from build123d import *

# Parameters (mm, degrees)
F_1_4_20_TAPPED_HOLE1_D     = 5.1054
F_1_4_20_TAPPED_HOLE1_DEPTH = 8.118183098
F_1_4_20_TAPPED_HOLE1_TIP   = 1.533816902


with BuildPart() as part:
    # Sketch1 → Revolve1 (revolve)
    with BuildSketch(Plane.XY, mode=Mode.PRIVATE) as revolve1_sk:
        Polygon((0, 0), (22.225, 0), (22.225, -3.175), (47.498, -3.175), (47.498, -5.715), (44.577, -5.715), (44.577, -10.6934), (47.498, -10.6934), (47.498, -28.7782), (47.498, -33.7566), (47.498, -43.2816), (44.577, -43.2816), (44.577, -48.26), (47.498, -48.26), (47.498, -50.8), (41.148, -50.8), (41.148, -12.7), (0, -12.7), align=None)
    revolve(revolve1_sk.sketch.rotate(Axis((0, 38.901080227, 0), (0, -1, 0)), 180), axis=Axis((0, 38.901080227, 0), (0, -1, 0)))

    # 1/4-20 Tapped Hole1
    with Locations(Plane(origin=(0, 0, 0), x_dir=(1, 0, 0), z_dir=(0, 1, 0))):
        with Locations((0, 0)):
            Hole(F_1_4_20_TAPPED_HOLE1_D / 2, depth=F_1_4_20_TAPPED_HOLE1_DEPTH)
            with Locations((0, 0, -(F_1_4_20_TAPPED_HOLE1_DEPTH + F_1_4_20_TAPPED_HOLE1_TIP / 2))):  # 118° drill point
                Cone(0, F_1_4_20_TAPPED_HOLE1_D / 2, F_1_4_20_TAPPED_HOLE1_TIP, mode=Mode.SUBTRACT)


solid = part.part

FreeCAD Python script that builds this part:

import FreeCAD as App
import Part
import Sketcher

V = App.Vector
Q = App.Units.Quantity


def add_polygon(sketch, points):
    """Adds a closed chain of lines whose ends are joined by coincident constraints."""
    first, n = sketch.GeometryCount, len(points)
    for a, b in zip(points, points[1:] + points[:1]):
        sketch.addGeometry(Part.LineSegment(App.Vector(*a, 0), App.Vector(*b, 0)), False)
    for i in range(n):
        sketch.addConstraint(Sketcher.Constraint("Coincident", first + i, 2, first + (i + 1) % n, 1))

doc = App.newDocument("Part")
body = doc.addObject("PartDesign::Body", "Body")

sketch1 = body.newObject("Sketcher::SketchObject", "Sketch")
sketch1.AttachmentSupport = (doc.getObject("XY_Plane"), [""])
sketch1.MapMode = "FlatFace"
add_polygon(sketch1, [(22.2, 0), (0, 0), (0, -12.7), (41.1, -12.7), (41.1, -50.8), (47.5, -50.8), (47.5, -48.3), (44.6, -48.3), (44.6, -43.3), (47.5, -43.3), (47.5, -10.7), (44.6, -10.7), (44.6, -5.7), (47.5, -5.7), (47.5, -3.2), (22.2, -3.2)])
sketch1.addConstraint([
    Sketcher.Constraint("Horizontal", 0),
    Sketcher.Constraint("Vertical", 1),
    Sketcher.Constraint("Horizontal", 2),
    Sketcher.Constraint("Vertical", 3),
    Sketcher.Constraint("Horizontal", 4),
    Sketcher.Constraint("Vertical", 5),
    Sketcher.Constraint("Horizontal", 6),
    Sketcher.Constraint("Vertical", 7),
    Sketcher.Constraint("Horizontal", 8),
    Sketcher.Constraint("Vertical", 9),
    Sketcher.Constraint("Horizontal", 10),
    Sketcher.Constraint("Vertical", 11),
    Sketcher.Constraint("Horizontal", 12),
    Sketcher.Constraint("Vertical", 13),
    Sketcher.Constraint("Horizontal", 14),
    Sketcher.Constraint("Vertical", 15),
    Sketcher.Constraint("Coincident", 0, 2, -1, 1),
    Sketcher.Constraint("Vertical", 5, 2, 8, 2),
    Sketcher.Constraint("Vertical", 7, 2, 10, 2),
    Sketcher.Constraint("Vertical", 9, 2, 12, 2),
    Sketcher.Constraint("Equal", 7, 11),
    Sketcher.Constraint("Equal", 5, 13),
    Sketcher.Constraint("DistanceY", 1, 2, 1, 1, Q("0.5 in")),
    Sketcher.Constraint("DistanceY", 3, 2, 3, 1, Q("1.5 in")),
    Sketcher.Constraint("DistanceY", 5, 1, 5, 2, Q("0.1 in")),
    Sketcher.Constraint("DistanceX", 2, 1, 2, 2, Q("1.62 in")),
    Sketcher.Constraint("DistanceX", 4, 1, 4, 2, Q("0.25 in")),
    Sketcher.Constraint("DistanceX", 0, 2, 0, 1, Q("0.875 in")),
    Sketcher.Constraint("DistanceX", 6, 2, 6, 1, Q("0.115 in")),
    Sketcher.Constraint("DistanceY", 7, 1, 7, 2, Q("0.196 in")),
    Sketcher.Constraint("DistanceY", 9, 1, 9, 2, Q("1.283 in")),
])
revolution = body.newObject("PartDesign::Revolution", "Revolution")
revolution.Profile = sketch1
revolution.ReferenceAxis = (sketch1, ["V_Axis"])
revolution.Angle = 360

sketch2 = body.newObject("Sketcher::SketchObject", "Sketch001")
sketch2.AttachmentSupport = (doc.getObject("XZ_Plane"), [""])
sketch2.MapMode = "FlatFace"
sketch2.addGeometry(Part.Circle(V(0, 0, 0), V(0, 0, 1), 2.6), False)
sketch2.addConstraint([
    Sketcher.Constraint("Coincident", 0, 3, -1, 1),
    Sketcher.Constraint("Diameter", 0, Q("0.201 in")),
])
doc.recompute()
hole = body.newObject("PartDesign::Hole", "Hole")
hole.Profile = sketch2
hole.ThreadType = "None"
hole.Diameter = Q("0.201 in")
hole.DepthType = "Dimension"
hole.Depth = 8.118183
hole.DrillPoint = "Angled"
hole.DrillPointAngle = 118
hole.Reversed = True

doc.recompute()
